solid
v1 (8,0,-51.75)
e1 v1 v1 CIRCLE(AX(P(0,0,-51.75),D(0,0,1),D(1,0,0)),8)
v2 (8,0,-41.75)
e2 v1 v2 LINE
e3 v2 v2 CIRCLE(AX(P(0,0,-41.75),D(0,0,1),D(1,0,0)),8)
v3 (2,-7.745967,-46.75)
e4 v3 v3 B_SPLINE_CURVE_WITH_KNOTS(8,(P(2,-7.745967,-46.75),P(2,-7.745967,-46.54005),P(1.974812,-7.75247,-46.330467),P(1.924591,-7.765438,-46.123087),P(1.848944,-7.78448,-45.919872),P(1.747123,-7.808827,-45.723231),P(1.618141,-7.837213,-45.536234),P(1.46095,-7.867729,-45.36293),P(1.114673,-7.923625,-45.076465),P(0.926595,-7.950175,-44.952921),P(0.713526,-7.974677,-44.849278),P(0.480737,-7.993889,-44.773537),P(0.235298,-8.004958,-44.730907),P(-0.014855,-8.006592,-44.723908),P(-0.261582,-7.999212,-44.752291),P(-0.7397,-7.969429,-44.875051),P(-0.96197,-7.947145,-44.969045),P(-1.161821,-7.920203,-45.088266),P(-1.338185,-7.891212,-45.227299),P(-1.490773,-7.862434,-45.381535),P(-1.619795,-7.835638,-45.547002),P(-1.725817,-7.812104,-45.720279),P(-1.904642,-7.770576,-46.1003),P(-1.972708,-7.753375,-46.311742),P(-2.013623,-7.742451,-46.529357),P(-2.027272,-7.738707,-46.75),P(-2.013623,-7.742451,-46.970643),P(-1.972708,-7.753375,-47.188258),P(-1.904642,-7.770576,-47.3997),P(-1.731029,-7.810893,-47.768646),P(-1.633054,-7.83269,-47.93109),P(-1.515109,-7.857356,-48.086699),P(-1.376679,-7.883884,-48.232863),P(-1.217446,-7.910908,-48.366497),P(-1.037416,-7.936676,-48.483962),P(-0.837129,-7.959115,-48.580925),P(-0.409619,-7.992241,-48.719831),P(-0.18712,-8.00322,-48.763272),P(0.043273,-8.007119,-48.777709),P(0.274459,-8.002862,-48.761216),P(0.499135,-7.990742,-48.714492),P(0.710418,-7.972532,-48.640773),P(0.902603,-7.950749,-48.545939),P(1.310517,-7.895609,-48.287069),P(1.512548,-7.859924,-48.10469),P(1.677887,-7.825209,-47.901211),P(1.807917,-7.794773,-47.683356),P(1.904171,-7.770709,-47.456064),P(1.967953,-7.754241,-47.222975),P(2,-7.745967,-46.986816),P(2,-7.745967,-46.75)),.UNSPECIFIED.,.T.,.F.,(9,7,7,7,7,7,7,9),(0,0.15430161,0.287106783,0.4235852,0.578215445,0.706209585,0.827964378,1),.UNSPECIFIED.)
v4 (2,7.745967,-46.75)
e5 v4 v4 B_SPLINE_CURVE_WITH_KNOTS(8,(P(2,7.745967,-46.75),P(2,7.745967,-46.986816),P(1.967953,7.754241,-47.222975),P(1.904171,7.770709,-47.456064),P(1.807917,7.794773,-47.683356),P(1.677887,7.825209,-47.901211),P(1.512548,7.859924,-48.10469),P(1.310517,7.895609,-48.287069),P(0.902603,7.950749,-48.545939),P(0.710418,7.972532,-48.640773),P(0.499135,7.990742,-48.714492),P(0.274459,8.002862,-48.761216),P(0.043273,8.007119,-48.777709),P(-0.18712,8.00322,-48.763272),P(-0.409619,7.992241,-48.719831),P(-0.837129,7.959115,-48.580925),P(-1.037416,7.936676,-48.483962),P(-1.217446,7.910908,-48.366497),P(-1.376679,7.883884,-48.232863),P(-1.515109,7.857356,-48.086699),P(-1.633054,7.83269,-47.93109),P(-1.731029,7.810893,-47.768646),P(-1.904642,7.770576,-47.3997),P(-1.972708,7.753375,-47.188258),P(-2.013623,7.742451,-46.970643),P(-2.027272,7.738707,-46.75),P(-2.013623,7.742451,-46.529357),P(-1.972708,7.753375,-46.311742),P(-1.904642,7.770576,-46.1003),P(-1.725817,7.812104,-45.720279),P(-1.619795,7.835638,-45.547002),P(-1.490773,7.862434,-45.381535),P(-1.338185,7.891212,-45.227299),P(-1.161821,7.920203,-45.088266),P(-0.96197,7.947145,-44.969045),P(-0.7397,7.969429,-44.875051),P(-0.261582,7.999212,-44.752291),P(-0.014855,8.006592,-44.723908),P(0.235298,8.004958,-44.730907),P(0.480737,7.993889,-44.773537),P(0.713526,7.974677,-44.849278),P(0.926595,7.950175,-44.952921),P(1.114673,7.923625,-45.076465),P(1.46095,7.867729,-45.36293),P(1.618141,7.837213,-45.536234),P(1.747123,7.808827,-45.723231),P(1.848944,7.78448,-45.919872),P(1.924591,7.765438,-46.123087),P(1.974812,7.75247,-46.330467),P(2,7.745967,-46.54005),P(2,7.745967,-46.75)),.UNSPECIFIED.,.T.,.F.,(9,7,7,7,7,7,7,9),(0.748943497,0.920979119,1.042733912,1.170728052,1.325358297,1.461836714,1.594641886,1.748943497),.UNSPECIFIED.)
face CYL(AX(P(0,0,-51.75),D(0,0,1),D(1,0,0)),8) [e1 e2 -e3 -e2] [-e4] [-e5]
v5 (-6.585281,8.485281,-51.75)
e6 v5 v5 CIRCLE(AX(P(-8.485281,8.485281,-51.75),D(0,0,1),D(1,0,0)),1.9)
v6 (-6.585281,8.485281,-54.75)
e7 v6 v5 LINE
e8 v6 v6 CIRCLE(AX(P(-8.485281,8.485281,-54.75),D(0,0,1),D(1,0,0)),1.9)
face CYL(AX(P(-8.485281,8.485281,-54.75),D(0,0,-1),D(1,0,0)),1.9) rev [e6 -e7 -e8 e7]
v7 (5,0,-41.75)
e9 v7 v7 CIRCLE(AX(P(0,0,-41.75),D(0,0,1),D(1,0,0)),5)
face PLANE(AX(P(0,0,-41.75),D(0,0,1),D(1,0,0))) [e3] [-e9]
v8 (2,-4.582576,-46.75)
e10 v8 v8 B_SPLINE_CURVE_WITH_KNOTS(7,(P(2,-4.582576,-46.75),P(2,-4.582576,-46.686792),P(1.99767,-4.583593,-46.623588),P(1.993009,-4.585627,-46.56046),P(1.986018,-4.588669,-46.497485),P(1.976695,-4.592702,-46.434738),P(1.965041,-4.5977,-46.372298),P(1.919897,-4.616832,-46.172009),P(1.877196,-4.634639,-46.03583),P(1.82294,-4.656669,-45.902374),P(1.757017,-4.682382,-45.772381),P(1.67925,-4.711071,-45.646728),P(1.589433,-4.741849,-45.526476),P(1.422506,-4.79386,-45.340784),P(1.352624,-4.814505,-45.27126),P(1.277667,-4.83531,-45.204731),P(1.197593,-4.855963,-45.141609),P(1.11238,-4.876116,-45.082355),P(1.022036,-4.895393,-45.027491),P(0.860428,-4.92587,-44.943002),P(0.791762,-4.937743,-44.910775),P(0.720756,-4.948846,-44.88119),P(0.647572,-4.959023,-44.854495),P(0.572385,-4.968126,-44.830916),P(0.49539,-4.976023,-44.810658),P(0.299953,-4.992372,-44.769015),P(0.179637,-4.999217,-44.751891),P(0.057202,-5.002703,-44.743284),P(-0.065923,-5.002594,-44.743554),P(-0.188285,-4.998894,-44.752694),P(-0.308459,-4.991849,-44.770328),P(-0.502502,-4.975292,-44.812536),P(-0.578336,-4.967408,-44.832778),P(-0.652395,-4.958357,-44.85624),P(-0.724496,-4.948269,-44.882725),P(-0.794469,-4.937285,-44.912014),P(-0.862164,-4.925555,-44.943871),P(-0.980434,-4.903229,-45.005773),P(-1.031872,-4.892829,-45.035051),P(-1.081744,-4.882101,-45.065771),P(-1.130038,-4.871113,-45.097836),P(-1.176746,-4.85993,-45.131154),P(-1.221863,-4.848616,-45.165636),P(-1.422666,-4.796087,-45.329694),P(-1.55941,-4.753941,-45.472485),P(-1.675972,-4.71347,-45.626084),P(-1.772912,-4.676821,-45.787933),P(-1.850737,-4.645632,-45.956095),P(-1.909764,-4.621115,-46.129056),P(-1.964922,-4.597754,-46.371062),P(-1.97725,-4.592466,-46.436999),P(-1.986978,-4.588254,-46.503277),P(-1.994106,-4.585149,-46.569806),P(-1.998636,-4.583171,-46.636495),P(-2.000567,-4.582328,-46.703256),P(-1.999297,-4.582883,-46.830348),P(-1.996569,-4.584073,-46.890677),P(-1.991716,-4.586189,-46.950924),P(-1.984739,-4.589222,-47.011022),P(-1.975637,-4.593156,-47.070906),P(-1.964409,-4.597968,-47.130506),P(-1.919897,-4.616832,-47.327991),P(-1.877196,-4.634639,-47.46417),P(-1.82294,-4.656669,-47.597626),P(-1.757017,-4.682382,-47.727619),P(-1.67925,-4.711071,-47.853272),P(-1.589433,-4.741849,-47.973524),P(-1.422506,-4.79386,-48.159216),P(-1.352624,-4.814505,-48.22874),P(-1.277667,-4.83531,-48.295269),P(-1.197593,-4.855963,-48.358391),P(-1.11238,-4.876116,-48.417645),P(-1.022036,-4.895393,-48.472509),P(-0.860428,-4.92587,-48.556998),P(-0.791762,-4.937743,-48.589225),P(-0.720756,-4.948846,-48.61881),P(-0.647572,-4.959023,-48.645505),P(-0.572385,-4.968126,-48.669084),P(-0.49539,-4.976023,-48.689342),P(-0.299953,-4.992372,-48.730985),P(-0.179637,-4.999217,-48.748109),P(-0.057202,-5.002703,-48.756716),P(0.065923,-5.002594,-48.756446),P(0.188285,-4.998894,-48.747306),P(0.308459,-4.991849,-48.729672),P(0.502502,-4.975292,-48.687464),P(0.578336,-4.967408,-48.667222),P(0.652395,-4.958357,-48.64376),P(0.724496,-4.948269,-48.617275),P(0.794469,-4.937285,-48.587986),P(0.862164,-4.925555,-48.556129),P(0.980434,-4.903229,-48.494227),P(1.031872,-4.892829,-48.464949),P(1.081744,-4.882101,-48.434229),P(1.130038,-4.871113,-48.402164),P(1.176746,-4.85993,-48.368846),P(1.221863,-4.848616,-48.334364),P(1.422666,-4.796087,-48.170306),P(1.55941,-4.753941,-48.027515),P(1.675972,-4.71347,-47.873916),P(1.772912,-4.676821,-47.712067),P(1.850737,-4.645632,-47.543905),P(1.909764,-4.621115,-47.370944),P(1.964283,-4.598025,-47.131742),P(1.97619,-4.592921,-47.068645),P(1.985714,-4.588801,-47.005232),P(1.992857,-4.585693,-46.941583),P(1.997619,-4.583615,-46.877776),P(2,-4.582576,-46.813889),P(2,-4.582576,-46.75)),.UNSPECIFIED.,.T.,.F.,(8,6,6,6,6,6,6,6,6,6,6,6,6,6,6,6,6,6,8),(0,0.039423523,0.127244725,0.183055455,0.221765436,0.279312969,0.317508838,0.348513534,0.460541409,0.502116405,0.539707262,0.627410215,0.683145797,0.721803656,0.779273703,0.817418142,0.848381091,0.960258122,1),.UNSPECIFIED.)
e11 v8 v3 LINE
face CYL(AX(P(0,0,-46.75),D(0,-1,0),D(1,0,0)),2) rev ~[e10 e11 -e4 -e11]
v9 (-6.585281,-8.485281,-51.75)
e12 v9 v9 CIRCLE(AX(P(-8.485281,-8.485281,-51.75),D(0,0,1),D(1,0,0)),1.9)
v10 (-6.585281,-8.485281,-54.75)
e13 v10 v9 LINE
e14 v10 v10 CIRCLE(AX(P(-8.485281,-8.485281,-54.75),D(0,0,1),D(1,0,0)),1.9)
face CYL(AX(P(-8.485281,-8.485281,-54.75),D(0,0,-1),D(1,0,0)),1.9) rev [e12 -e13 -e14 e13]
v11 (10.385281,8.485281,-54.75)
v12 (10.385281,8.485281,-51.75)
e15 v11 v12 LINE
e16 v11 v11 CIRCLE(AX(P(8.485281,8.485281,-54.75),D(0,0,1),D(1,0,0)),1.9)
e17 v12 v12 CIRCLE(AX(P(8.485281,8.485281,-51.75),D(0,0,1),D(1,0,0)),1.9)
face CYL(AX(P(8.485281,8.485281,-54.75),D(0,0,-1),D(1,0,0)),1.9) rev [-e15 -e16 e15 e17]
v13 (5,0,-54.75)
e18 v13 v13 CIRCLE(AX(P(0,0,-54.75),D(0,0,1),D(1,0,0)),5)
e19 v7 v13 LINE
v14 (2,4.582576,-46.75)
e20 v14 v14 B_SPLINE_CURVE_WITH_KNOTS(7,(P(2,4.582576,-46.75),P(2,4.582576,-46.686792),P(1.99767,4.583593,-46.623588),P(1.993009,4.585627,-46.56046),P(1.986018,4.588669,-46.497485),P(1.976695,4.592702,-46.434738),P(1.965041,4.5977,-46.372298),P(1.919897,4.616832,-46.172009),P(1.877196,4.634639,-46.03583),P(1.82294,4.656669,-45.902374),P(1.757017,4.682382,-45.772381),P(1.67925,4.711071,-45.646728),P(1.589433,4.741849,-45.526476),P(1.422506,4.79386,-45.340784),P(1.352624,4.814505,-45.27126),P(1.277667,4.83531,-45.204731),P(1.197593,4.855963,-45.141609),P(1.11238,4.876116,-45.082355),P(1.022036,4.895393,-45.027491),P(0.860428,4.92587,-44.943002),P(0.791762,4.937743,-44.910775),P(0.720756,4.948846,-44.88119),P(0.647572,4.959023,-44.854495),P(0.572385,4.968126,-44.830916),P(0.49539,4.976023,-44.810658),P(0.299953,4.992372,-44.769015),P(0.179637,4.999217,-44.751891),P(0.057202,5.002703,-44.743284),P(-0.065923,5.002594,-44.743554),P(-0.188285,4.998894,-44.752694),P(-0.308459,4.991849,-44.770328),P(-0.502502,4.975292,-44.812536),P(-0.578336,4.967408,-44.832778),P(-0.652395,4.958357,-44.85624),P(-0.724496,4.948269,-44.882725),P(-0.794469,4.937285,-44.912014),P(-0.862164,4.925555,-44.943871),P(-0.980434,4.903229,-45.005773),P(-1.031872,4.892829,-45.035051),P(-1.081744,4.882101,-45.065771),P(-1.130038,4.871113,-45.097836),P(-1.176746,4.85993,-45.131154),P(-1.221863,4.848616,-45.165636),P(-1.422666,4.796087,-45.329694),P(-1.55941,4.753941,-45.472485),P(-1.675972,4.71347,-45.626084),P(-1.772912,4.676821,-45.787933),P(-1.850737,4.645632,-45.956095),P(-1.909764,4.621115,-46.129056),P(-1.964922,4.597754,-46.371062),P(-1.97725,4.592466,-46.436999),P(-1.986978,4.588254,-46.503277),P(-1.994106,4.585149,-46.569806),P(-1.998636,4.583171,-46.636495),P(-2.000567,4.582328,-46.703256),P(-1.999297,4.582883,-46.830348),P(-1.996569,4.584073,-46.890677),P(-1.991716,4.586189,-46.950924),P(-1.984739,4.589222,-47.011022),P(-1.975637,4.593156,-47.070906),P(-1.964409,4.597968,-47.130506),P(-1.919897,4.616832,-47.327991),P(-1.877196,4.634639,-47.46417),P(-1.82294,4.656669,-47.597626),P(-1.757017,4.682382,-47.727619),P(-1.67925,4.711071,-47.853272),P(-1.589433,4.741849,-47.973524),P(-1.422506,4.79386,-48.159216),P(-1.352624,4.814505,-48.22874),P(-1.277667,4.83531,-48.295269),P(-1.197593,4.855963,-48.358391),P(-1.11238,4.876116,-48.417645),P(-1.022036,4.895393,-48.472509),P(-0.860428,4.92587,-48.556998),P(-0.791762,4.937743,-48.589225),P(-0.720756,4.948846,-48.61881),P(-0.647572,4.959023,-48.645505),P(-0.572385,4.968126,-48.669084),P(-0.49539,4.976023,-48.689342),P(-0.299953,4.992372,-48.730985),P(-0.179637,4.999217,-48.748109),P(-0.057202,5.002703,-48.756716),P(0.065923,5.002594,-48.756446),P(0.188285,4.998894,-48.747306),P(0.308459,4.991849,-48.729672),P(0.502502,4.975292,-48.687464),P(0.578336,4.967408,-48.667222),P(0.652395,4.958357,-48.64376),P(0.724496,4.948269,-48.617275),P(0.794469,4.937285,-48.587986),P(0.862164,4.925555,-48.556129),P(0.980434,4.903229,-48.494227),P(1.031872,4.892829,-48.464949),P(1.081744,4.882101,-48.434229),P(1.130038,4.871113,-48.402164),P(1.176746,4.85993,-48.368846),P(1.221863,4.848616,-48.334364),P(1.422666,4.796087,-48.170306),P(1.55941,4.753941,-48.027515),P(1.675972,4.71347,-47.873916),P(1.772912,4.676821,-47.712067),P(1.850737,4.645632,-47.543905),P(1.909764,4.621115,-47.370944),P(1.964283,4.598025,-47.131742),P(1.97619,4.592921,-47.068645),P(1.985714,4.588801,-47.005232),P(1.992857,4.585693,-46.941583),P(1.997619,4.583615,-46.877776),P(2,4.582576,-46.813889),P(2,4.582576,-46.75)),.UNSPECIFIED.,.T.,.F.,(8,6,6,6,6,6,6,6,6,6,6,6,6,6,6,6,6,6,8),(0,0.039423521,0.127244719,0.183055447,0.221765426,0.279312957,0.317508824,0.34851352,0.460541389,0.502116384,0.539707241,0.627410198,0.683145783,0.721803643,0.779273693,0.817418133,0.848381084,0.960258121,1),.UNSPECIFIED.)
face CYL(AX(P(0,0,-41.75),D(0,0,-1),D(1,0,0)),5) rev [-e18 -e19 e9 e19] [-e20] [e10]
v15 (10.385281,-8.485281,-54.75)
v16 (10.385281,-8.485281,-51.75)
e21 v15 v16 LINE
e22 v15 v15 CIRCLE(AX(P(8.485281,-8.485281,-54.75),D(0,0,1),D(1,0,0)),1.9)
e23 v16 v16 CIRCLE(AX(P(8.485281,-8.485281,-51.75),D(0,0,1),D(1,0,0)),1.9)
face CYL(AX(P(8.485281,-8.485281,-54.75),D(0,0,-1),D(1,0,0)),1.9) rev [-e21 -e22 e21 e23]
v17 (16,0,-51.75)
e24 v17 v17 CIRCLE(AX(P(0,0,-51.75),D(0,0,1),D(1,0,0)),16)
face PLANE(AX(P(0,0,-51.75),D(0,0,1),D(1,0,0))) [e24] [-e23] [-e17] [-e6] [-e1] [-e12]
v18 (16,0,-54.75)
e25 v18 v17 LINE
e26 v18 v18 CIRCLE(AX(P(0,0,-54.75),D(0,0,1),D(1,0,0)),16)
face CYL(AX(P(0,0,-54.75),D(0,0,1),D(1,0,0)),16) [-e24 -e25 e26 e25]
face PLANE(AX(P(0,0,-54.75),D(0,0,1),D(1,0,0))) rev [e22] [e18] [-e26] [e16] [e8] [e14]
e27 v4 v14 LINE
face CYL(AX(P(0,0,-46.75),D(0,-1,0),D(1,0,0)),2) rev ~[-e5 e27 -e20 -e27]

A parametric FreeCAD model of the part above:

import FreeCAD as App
import Part
import Sketcher

V = App.Vector
Q = App.Units.Quantity


def add_polygon(sketch, points):
    """Adds a closed chain of lines whose ends are joined by coincident constraints."""
    first, n = sketch.GeometryCount, len(points)
    for a, b in zip(points, points[1:] + points[:1]):
        sketch.addGeometry(Part.LineSegment(App.Vector(*a, 0), App.Vector(*b, 0)), False)
    for i in range(n):
        sketch.addConstraint(Sketcher.Constraint("Coincident", first + i, 2, first + (i + 1) % n, 1))

doc = App.newDocument("Part")
body = doc.addObject("PartDesign::Body", "Body")

# Sketch on XZ plane
sketch1 = body.newObject("Sketcher::SketchObject", "Sketch")
sketch1.AttachmentSupport = (doc.getObject("XZ_Plane"), [""])
sketch1.MapMode = "FlatFace"
add_polygon(sketch1, [(5, 13), (5, 0), (16, 0), (16, 3), (8, 3), (8, 13)])  # lines 0-5
sketch1.addConstraint([
    Sketcher.Constraint("Vertical", 0),
    Sketcher.Constraint("Horizontal", 1),
    Sketcher.Constraint("Vertical", 2),
    Sketcher.Constraint("Horizontal", 3),
    Sketcher.Constraint("Vertical", 4),
    Sketcher.Constraint("Horizontal", 5),
    Sketcher.Constraint("PointOnObject", 0, 2, -1),
    Sketcher.Constraint("Equal", 5, 2),
    Sketcher.Constraint("DistanceX", 1, 1, 1, 2, Q("11 mm")),
    Sketcher.Constraint("DistanceX", 3, 2, 3, 1, Q("8 mm")),
    Sketcher.Constraint("DistanceY", 0, 2, 0, 1, Q("13 mm")),
    Sketcher.Constraint("DistanceX", -1, 1, 0, 2, Q("5 mm")),
])
revolution = body.newObject("PartDesign::Revolution", "Revolution")
revolution.Profile = sketch1
revolution.ReferenceAxis = (sketch1, ["V_Axis"])
revolution.Angle = 360

# Sketch on XY plane
sketch2 = body.newObject("Sketcher::SketchObject", "Sketch001")
sketch2.AttachmentSupport = (doc.getObject("XY_Plane"), [""])
sketch2.MapMode = "FlatFace"
sketch2.addGeometry([
    Part.Circle(V(-8.5, 8.5, 0), V(0, 0, 1), 1.9),
    Part.Circle(V(8.5, 8.5, 0), V(0, 0, 1), 1.9),
    Part.Circle(V(8.5, -8.5, 0), V(0, 0, 1), 1.9),
    Part.Circle(V(-8.5, -8.5, 0), V(0, 0, 1), 1.9),
], False)
sketch2.addConstraint([
    Sketcher.Constraint("Equal", 0, 1),
    Sketcher.Constraint("Equal", 1, 2),
    Sketcher.Constraint("Equal", 2, 3),
    Sketcher.Constraint("Symmetric", 0, 3, 2, 3, -1, 1),
    Sketcher.Constraint("Symmetric", 1, 3, 3, 3, -1, 1),
    Sketcher.Constraint("Symmetric", 0, 3, 1, 3, -2),
    Sketcher.Constraint("Diameter", 0, Q("3.8 mm")),
    Sketcher.Constraint("DistanceX", 0, 3, -1, 1, Q("8.485281 mm")),
    Sketcher.Constraint("DistanceY", -1, 1, 0, 3, Q("8.485281 mm")),
])
pocket1 = body.newObject("PartDesign::Pocket", "Pocket")
pocket1.Profile = sketch2
pocket1.Length = 3
pocket1.Reversed = True

# Sketch on XZ plane
sketch3 = body.newObject("Sketcher::SketchObject", "Sketch002")
sketch3.AttachmentSupport = (doc.getObject("XZ_Plane"), [""])
sketch3.MapMode = "FlatFace"
sketch3.addGeometry(Part.Circle(V(0, 8, 0), V(0, 0, 1), 2), False)
sketch3.addConstraint([
    Sketcher.Constraint("PointOnObject", 0, 3, -2),
    Sketcher.Constraint("Diameter", 0, Q("4 mm")),
    Sketcher.Constraint("DistanceY", -1, 1, 0, 3, Q("8 mm")),
])
pocket2 = body.newObject("PartDesign::Pocket", "Pocket001")
pocket2.Profile = sketch3
pocket2.Length = 16
pocket2.Midplane = True
body2 = doc.addObject("PartDesign::Body", "Body001")
doc.recompute()

body.Placement = App.Placement(V(0, 0, -54.75), App.Rotation(V(0, 0, 1), 0))
boolean = body2.newObject("PartDesign::Boolean", "Boolean")
boolean.Type = "Fuse"
boolean.addObjects([body])

doc.recompute()
